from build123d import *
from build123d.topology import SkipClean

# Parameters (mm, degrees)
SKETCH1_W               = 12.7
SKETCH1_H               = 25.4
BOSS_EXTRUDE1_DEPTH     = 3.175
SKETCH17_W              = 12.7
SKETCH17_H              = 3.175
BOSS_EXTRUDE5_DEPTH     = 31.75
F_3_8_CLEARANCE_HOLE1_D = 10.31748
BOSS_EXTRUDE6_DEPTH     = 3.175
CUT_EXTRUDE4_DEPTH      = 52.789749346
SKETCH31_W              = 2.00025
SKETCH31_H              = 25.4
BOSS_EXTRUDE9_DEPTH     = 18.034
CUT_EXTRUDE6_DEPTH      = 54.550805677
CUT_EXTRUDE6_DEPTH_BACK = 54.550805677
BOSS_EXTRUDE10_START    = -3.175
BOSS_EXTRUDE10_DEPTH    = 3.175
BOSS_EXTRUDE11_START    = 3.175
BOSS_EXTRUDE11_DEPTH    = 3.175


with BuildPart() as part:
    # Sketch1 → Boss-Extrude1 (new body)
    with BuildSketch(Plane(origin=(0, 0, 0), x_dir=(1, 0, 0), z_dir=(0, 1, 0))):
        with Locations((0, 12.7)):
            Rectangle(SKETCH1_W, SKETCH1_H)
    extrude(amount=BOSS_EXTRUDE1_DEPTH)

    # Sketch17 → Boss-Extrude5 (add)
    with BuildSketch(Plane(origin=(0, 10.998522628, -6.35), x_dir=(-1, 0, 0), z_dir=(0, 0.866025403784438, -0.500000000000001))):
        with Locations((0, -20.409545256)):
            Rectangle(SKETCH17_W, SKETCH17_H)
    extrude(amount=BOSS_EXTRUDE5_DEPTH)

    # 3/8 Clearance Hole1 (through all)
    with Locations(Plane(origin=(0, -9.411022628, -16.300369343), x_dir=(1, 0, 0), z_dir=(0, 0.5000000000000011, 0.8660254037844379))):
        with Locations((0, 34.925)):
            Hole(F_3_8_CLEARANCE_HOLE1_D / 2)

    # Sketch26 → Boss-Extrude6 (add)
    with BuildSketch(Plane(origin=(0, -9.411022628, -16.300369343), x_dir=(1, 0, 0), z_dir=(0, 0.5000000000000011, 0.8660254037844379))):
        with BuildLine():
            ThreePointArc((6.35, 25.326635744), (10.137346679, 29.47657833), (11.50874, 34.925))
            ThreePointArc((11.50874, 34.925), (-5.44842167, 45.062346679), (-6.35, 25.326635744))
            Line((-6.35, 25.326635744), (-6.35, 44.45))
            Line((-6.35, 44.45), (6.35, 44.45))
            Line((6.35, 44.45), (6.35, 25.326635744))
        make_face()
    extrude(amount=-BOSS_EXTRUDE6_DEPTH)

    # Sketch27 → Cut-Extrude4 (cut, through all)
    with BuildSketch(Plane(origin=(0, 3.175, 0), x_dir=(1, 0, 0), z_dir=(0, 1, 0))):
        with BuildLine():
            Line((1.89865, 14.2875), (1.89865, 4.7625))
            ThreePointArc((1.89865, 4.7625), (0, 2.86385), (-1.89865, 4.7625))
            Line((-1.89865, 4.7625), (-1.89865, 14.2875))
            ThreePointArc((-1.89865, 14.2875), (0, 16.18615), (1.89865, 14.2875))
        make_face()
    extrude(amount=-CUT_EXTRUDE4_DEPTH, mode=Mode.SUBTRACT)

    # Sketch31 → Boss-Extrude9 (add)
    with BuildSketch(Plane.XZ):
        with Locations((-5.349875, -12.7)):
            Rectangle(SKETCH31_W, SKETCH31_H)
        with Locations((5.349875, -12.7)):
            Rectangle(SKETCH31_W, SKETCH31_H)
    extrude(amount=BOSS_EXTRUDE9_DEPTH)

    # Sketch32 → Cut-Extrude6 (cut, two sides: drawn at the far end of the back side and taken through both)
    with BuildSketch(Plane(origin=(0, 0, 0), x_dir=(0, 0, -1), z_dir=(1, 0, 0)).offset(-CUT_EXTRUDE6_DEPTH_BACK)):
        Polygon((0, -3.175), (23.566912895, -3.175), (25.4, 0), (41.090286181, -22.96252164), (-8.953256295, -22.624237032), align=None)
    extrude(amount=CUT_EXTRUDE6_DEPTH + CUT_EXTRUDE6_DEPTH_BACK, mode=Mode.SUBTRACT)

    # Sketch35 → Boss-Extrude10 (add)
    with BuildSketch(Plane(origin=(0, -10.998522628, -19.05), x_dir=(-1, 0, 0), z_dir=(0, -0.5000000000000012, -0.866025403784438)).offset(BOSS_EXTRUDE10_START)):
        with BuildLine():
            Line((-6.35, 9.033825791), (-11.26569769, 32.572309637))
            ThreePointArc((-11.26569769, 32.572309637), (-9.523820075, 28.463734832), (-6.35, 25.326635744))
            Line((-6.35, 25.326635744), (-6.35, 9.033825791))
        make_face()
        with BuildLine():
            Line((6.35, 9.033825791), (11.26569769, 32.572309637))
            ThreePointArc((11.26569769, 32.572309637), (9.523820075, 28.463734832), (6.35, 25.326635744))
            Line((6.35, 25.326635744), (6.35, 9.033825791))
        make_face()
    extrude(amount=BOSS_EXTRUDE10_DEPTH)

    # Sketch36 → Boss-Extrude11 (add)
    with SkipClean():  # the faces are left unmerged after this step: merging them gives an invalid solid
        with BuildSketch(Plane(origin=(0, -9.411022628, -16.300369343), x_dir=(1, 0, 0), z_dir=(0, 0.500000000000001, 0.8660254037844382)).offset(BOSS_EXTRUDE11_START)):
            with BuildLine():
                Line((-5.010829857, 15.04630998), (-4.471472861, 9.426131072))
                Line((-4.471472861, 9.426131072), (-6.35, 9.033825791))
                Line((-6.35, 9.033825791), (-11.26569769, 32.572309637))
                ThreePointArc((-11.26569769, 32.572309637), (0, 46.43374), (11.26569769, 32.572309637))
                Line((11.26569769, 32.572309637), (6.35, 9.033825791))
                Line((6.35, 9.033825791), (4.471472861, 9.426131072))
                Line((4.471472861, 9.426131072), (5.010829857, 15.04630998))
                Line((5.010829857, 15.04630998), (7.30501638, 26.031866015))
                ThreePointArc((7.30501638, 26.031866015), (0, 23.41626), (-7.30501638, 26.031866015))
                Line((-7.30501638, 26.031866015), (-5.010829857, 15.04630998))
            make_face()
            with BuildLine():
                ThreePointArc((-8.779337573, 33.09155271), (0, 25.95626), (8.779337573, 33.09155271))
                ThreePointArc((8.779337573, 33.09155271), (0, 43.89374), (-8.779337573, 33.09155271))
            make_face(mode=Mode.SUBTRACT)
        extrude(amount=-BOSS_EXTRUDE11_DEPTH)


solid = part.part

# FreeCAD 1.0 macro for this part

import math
import FreeCAD as App
import Part
import Sketcher
Q = App.Units.Quantity


def add_polygon(sketch, points):
    """Adds a closed chain of lines whose ends are joined by coincident constraints."""
    first, n = sketch.GeometryCount, len(points)
    for a, b in zip(points, points[1:] + points[:1]):
        sketch.addGeometry(Part.LineSegment(App.Vector(*a, 0), App.Vector(*b, 0)), False)
    for i in range(n):
        sketch.addConstraint(Sketcher.Constraint("Coincident", first + i, 2, first + (i + 1) % n, 1))

doc = App.newDocument("Part")
body = doc.addObject("PartDesign::Body", "Body")

sketch1 = doc.addObject("Sketcher::SketchObject", "Sketch")
body.addObject(sketch1)
sketch1.AttachmentSupport = (doc.XZ_Plane, [""])
sketch1.MapMode = "FlatFace"
add_polygon(sketch1, [(-6, -25), (-6, 0), (6, 0), (6, -25)])
sketch1.addConstraint([
    Sketcher.Constraint("Vertical", 0),
    Sketcher.Constraint("Horizontal", 1),
    Sketcher.Constraint("Vertical", 2),
    Sketcher.Constraint("Horizontal", 3),
    Sketcher.Constraint("Symmetric", 0, 2, 1, 2, -1, 1),
    Sketcher.Constraint("DistanceY", 0, 1, 0, 2, Q("1 in")),
    Sketcher.Constraint("DistanceX", 1, 1, 1, 2, Q("0.5 in")),
])
pad1 = doc.addObject("PartDesign::Pad", "Pad")
body.addObject(pad1)
pad1.Profile = sketch1
pad1.Length = Q("0.125 in")
pad1.Reversed = True

sketch2 = doc.addObject("Sketcher::SketchObject", "Sketch001")
body.addObject(sketch2)
sketch2.Placement = App.Placement(App.Vector(0, 10.998523, -6.35), App.Rotation(App.Vector(-1, 0, 0), App.Vector(0, 0.5, 0.866025404), App.Vector(0, 0.866025404, -0.5), "ZXY"))
add_polygon(sketch2, [(-6.3, -18.8), (-6.3, -22), (6.3, -22), (6.3, -18.8)])
sketch2.addConstraint([
    Sketcher.Constraint("Vertical", 0),
    Sketcher.Constraint("Horizontal", 1),
    Sketcher.Constraint("Vertical", 2),
    Sketcher.Constraint("Horizontal", 3),
    Sketcher.Constraint("DistanceX", 1, 1, 1, 2, Q("0.5 in")),
    Sketcher.Constraint("DistanceY", 0, 2, 0, 1, Q("0.125 in")),
    Sketcher.Constraint("DistanceX", 0, 2, -1, 1, Q("0.25 in")),
    Sketcher.Constraint("DistanceY", 0, 2, -1, 1, 21.997045),
])
pad2 = doc.addObject("PartDesign::Pad", "Pad001")
body.addObject(pad2)
pad2.Profile = sketch2
pad2.Length = Q("1.25 in")

sketch3 = doc.addObject("Sketcher::SketchObject", "Sketch002")
body.addObject(sketch3)
sketch3.Placement = App.Placement(App.Vector(0, -9.411023, -16.300369), App.Rotation(App.Vector(1, 0, 0), App.Vector(0, 0.866025404, -0.5), App.Vector(0, 0.5, 0.866025404), "ZXY"))
sketch3.addGeometry(Part.Circle(App.Vector(0, 35, 0), App.Vector(0, 0, 1), 5), False)
sketch3.addConstraint([
    Sketcher.Constraint("PointOnObject", 0, 3, -2),
    Sketcher.Constraint("Diameter", 0, Q("0.4062 in")),
    Sketcher.Constraint("DistanceY", -1, 1, 0, 3, Q("1.375 in")),
])
doc.recompute()
hole = doc.addObject("PartDesign::Hole", "Hole")
body.addObject(hole)
hole.Profile = sketch3
hole.ThreadType = "None"
hole.Diameter = Q("0.4062 in")
hole.DepthType = "ThroughAll"

sketch4 = doc.addObject("Sketcher::SketchObject", "Sketch003")
body.addObject(sketch4)
sketch4.Placement = App.Placement(App.Vector(0, -9.411023, -16.300369), App.Rotation(App.Vector(1, 0, 0), App.Vector(0, 0.866025404, -0.5), App.Vector(0, 0.5, 0.866025404), "ZXY"))
sketch4.addGeometry([
    Part.ArcOfCircle(Part.Circle(App.Vector(0, 35, 0), App.Vector(0, 0, 1), 12), math.radians(-57), math.radians(0)),
    Part.ArcOfCircle(Part.Circle(App.Vector(0, 35, 0), App.Vector(0, 0, 1), 12), math.radians(0), math.radians(237)),
    Part.LineSegment(App.Vector(-6, 25, 0), App.Vector(-6, 44, 0)),
    Part.LineSegment(App.Vector(-6, 44, 0), App.Vector(6, 44, 0)),
    Part.LineSegment(App.Vector(6, 44, 0), App.Vector(6, 25, 0)),
], False)
sketch4.addConstraint([
    Sketcher.Constraint("Tangent", 0, 2, 1, 1),
    Sketcher.Constraint("Coincident", 1, 2, 2, 1),
    Sketcher.Constraint("Coincident", 2, 2, 3, 1),
    Sketcher.Constraint("Coincident", 3, 2, 4, 1),
    Sketcher.Constraint("Coincident", 4, 2, 0, 1),
    Sketcher.Constraint("Vertical", 2),
    Sketcher.Constraint("Horizontal", 3),
    Sketcher.Constraint("Vertical", 4),
    Sketcher.Constraint("Equal", 0, 1),
    Sketcher.Constraint("Symmetric", 1, 2, 4, 2, -2),
    Sketcher.Constraint("Horizontal", 1, 3, 0, 2),
    Sketcher.Constraint("DistanceX", 3, 1, 3, 2, Q("0.5 in")),
    Sketcher.Constraint("Radius", 0, Q("0.4531 in")),
    Sketcher.Constraint("DistanceY", -1, 1, 2, 2, Q("1.75 in")),
    Sketcher.Constraint("DistanceY", -1, 1, 0, 3, Q("1.375 in")),
])
pad3 = doc.addObject("PartDesign::Pad", "Pad002")
body.addObject(pad3)
pad3.Profile = sketch4
pad3.Length = Q("0.125 in")
pad3.Reversed = True

sketch5 = doc.addObject("Sketcher::SketchObject", "Sketch004")
body.addObject(sketch5)
sketch5.AttachmentSupport = (doc.XZ_Plane, [""])
sketch5.MapMode = "FlatFace"
sketch5.AttachmentOffset = App.Placement(App.Vector(0, 0, -0.125 * 25.4), App.Rotation())
sketch5.addGeometry([
    Part.LineSegment(App.Vector(1.9, -4.8, 0), App.Vector(1.9, -14.3, 0)),
    Part.ArcOfCircle(Part.Circle(App.Vector(0, -14.3, 0), App.Vector(0, 0, 1), 1.9), math.radians(180), math.radians(360)),
    Part.LineSegment(App.Vector(-1.9, -14.3, 0), App.Vector(-1.9, -4.8, 0)),
    Part.ArcOfCircle(Part.Circle(App.Vector(0, -4.8, 0), App.Vector(0, 0, 1), 1.9), math.radians(0), math.radians(180)),
], False)
sketch5.addConstraint([
    Sketcher.Constraint("Tangent", 0, 2, 1, 2),
    Sketcher.Constraint("Tangent", 1, 1, 2, 1),
    Sketcher.Constraint("Tangent", 2, 2, 3, 2),
    Sketcher.Constraint("Tangent", 3, 1, 0, 1),
    Sketcher.Constraint("Vertical", 0),
    Sketcher.Constraint("Vertical", 2),
    Sketcher.Constraint("PointOnObject", 1, 3, -2),
    Sketcher.Constraint("DistanceY", 0, 2, 0, 1, Q("0.375 in")),
    Sketcher.Constraint("DistanceY", 1, 3, -1, 1, Q("0.5625 in")),
    Sketcher.Constraint("Radius", 1, 1.89865),
])
pocket1 = doc.addObject("PartDesign::Pocket", "Pocket")
body.addObject(pocket1)
pocket1.Profile = sketch5
pocket1.Type = "ThroughAll"
pocket1.Reversed = True

sketch6 = doc.addObject("Sketcher::SketchObject", "Sketch005")
body.addObject(sketch6)
sketch6.AttachmentSupport = (doc.XZ_Plane, [""])
sketch6.MapMode = "FlatFace"
add_polygon(sketch6, [(-6.3, 0), (-6.3, -25.4), (-4.3, -25.4), (-4.3, 0)])
add_polygon(sketch6, [(4.3, 0), (4.3, -25.4), (6.3, -25.4), (6.3, 0)])
sketch6.addConstraint([
    Sketcher.Constraint("Vertical", 0),
    Sketcher.Constraint("Horizontal", 1),
    Sketcher.Constraint("Vertical", 2),
    Sketcher.Constraint("Horizontal", 3),
    Sketcher.Constraint("Vertical", 4),
    Sketcher.Constraint("Horizontal", 5),
    Sketcher.Constraint("Vertical", 6),
    Sketcher.Constraint("Horizontal", 7),
    Sketcher.Constraint("Symmetric", 3, 2, 6, 2, -1, 1),
    Sketcher.Constraint("Symmetric", 1, 2, 4, 2, -2),
    Sketcher.Constraint("PointOnObject", 2, 2, -1),
    Sketcher.Constraint("DistanceY", 0, 2, 0, 1, Q("1 in")),
    Sketcher.Constraint("DistanceX", 0, 2, 5, 2, Q("0.5 in")),
    Sketcher.Constraint("DistanceX", 1, 2, 4, 2, Q("0.3425 in")),
])
pad4 = doc.addObject("PartDesign::Pad", "Pad003")
body.addObject(pad4)
pad4.Profile = sketch6
pad4.Length = Q("0.71 in")

sketch7 = doc.addObject("Sketcher::SketchObject", "Sketch006")
body.addObject(sketch7)
sketch7.AttachmentSupport = (doc.YZ_Plane, [""])
sketch7.MapMode = "FlatFace"
add_polygon(sketch7, [(-3.2, -23.6), (-3.2, 0), (-22.6, 9), (-23, -41.1), (0, -25.4)])
sketch7.addConstraint([
    Sketcher.Constraint("Vertical", 0),
    Sketcher.Constraint("PointOnObject", 0, 2, -1),
    Sketcher.Constraint("PointOnObject", 3, 2, -2),
    Sketcher.Constraint("DistanceY", 3, 2, -1, 1, Q("1 in")),
    Sketcher.Constraint("Angle", 4, Q("150 deg")),
    Sketcher.Constraint("DistanceX", 0, 2, -1, 1, Q("0.125 in")),
    Sketcher.Constraint("DistanceX", 2, 2, -1, 1, 22.962522),
    Sketcher.Constraint("DistanceY", 4, 2, 1, 2, 32.520169),
    Sketcher.Constraint("Distance", 1, 21.411063),
    Sketcher.Constraint("Distance", 2, 50.044686),
])
pocket2 = doc.addObject("PartDesign::Pocket", "Pocket001")
body.addObject(pocket2)
pocket2.Profile = sketch7
pocket2.Type = "ThroughAll"
pocket2.Midplane = True

sketch8 = doc.addObject("Sketcher::SketchObject", "Sketch007")
body.addObject(sketch8)
sketch8.Placement = App.Placement(App.Vector(0, -9.411023, -16.300369), App.Rotation(App.Vector(-1, 0, 0), App.Vector(0, 0.866025404, -0.5), App.Vector(0, -0.5, -0.866025404), "ZXY"))
sketch8.addGeometry([
    Part.LineSegment(App.Vector(-11, 33, 0), App.Vector(-6, 9, 0)),
    Part.LineSegment(App.Vector(-6, 9, 0), App.Vector(-6, 25, 0)),
    Part.ArcOfCircle(Part.Circle(App.Vector(0, 35, 0), App.Vector(0, 0, 1), 12), math.radians(-168), math.radians(-123)),
    Part.LineSegment(App.Vector(6, 9, 0), App.Vector(11, 33, 0)),
    Part.ArcOfCircle(Part.Circle(App.Vector(0, 35, 0), App.Vector(0, 0, 1), 12), math.radians(-57), math.radians(-12)),
    Part.LineSegment(App.Vector(6, 25, 0), App.Vector(6, 9, 0)),
], False)
sketch8.addConstraint([
    Sketcher.Constraint("Coincident", 0, 2, 1, 1),
    Sketcher.Constraint("Coincident", 1, 2, 2, 2),
    Sketcher.Constraint("Tangent", 2, 1, 0, 1),
    Sketcher.Constraint("Tangent", 3, 2, 4, 2),
    Sketcher.Constraint("Coincident", 4, 1, 5, 1),
    Sketcher.Constraint("Coincident", 5, 2, 3, 1),
    Sketcher.Constraint("Vertical", 1),
    Sketcher.Constraint("Vertical", 5),
    Sketcher.Constraint("Coincident", 4, 3, 2, 3),
    Sketcher.Constraint("Equal", 2, 4),
    Sketcher.Constraint("Symmetric", 2, 1, 3, 2, -2),
    Sketcher.Constraint("Horizontal", 1, 2, 4, 1),
    Sketcher.Constraint("Radius", 2, Q("0.4531 in")),
    Sketcher.Constraint("DistanceX", 1, 2, 4, 1, Q("0.5 in")),
    Sketcher.Constraint("DistanceY", -1, 1, 2, 3, Q("1.375 in")),
    Sketcher.Constraint("DistanceY", 1, 1, 1, 2, 16.29281),
])
pad5 = doc.addObject("PartDesign::Pad", "Pad004")
body.addObject(pad5)
pad5.Profile = sketch8
pad5.Length = Q("0.125 in")

sketch9 = doc.addObject("Sketcher::SketchObject", "Sketch008")
body.addObject(sketch9)
sketch9.Placement = App.Placement(App.Vector(0, -7.823523, -13.550739), App.Rotation(App.Vector(1, 0, 0), App.Vector(0, 0.866025404, -0.5), App.Vector(0, 0.5, 0.866025404), "ZXY"))
sketch9.addGeometry([
    Part.LineSegment(App.Vector(-4.5, 9.4, 0), App.Vector(-5, 15, 0)),
    Part.LineSegment(App.Vector(-5, 15, 0), App.Vector(-7.3, 26, 0)),
    Part.ArcOfCircle(Part.Circle(App.Vector(0, 34.9, 0), App.Vector(0, 0, 1), 11.5), math.radians(-129), math.radians(-51)),
    Part.LineSegment(App.Vector(7.3, 26, 0), App.Vector(5, 15, 0)),
    Part.LineSegment(App.Vector(5, 15, 0), App.Vector(4.5, 9.4, 0)),
    Part.LineSegment(App.Vector(4.5, 9.4, 0), App.Vector(6.3, 9, 0)),
    Part.LineSegment(App.Vector(6.3, 9, 0), App.Vector(11.3, 32.6, 0)),
    Part.ArcOfCircle(Part.Circle(App.Vector(0, 34.9, 0), App.Vector(0, 0, 1), 11.5), math.radians(-12), math.radians(192)),
    Part.LineSegment(App.Vector(-11.3, 32.6, 0), App.Vector(-6.3, 9, 0)),
    Part.LineSegment(App.Vector(-6.3, 9, 0), App.Vector(-4.5, 9.4, 0)),
    Part.ArcOfCircle(Part.Circle(App.Vector(0, 34.9, 0), App.Vector(0, 0, 1), 9), math.radians(-12), math.radians(192)),
    Part.ArcOfCircle(Part.Circle(App.Vector(0, 34.9, 0), App.Vector(0, 0, 1), 9), math.radians(-168), math.radians(-12)),
], False)
sketch9.addConstraint([
    Sketcher.Constraint("Coincident", 0, 2, 1, 1),
    Sketcher.Constraint("Coincident", 1, 2, 2, 1),
    Sketcher.Constraint("Coincident", 2, 2, 3, 1),
    Sketcher.Constraint("Coincident", 3, 2, 4, 1),
    Sketcher.Constraint("Coincident", 4, 2, 5, 1),
    Sketcher.Constraint("Coincident", 5, 2, 6, 1),
    Sketcher.Constraint("Tangent", 6, 2, 7, 1),
    Sketcher.Constraint("Tangent", 7, 2, 8, 1),
    Sketcher.Constraint("Coincident", 8, 2, 9, 1),
    Sketcher.Constraint("Coincident", 9, 2, 0, 1),
    Sketcher.Constraint("Tangent", 10, 1, 11, 2),
    Sketcher.Constraint("Coincident", 11, 1, 10, 2),
    Sketcher.Constraint("Coincident", 7, 3, 2, 3),
    Sketcher.Constraint("Coincident", 10, 3, 2, 3),
    Sketcher.Constraint("Equal", 2, 7),
    Sketcher.Constraint("Symmetric", 1, 2, 2, 2, -2),
    Sketcher.Constraint("Symmetric", 0, 2, 3, 2, -2),
    Sketcher.Constraint("Symmetric", 5, 2, 8, 2, -2),
    Sketcher.Constraint("Symmetric", 4, 2, 9, 2, -2),
    Sketcher.Constraint("Perpendicular", 3, 5),
    Sketcher.Constraint("Perpendicular", 5, 6),
    Sketcher.Constraint("Horizontal", 10, 1, 11, 1),
    Sketcher.Constraint("Radius", 2, Q("0.4531 in")),
    Sketcher.Constraint("Radius", 10, Q("0.3531 in")),
    Sketcher.Constraint("DistanceX", 8, 2, 5, 2, Q("0.5 in")),
    Sketcher.Constraint("DistanceY", -1, 1, 2, 3, Q("1.375 in")),
    Sketcher.Constraint("Distance", 0, 5.646),
    Sketcher.Constraint("DistanceX", 0, 2, -1, 1, 5.01083),
    Sketcher.Constraint("DistanceY", -1, 1, 0, 2, 15.04631),
    Sketcher.Constraint("DistanceY", -1, 1, 4, 2, 9.426131),
    Sketcher.Constraint("DistanceX", 10, 1, 6, 2, 2.48636),
])
pad6 = doc.addObject("PartDesign::Pad", "Pad005")
body.addObject(pad6)
pad6.Profile = sketch9
pad6.Length = Q("0.125 in")
pad6.Reversed = True

doc.recompute()
